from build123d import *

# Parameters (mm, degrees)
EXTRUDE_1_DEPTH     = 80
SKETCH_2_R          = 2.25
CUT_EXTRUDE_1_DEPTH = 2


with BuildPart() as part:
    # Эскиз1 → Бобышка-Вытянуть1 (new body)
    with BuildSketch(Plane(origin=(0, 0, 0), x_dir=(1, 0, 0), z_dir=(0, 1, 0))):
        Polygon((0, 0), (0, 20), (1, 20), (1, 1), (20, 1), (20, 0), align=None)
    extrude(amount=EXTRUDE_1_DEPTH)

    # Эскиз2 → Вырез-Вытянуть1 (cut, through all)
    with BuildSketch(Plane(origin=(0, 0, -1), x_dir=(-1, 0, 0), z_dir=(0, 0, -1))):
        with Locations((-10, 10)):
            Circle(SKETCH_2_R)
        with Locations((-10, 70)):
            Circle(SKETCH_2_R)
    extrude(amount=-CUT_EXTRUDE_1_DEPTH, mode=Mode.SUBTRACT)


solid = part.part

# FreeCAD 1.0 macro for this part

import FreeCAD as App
import Part
import Sketcher

V = App.Vector


def add_polygon(sketch, points):
    """Adds a closed chain of lines whose ends are joined by coincident constraints."""
    first, n = sketch.GeometryCount, len(points)
    for a, b in zip(points, points[1:] + points[:1]):
        sketch.addGeometry(Part.LineSegment(App.Vector(*a, 0), App.Vector(*b, 0)), False)
    for i in range(n):
        sketch.addConstraint(Sketcher.Constraint("Coincident", first + i, 2, first + (i + 1) % n, 1))

doc = App.newDocument("Part")
body = doc.addObject("PartDesign::Body", "Body")

# Sketch on XZ plane
sketch1 = body.newObject("Sketcher::SketchObject", "Sketch")
sketch1.AttachmentSupport = (doc.getObject("XZ_Plane"), [""])
sketch1.MapMode = "FlatFace"
add_polygon(sketch1, [(0, -20), (0, 0), (20, 0), (20, -1), (1, -1), (1, -20)])  # lines 0-5
sketch1.addConstraint([
    Sketcher.Constraint("Vertical", 0),
    Sketcher.Constraint("Horizontal", 1),
    Sketcher.Constraint("Vertical", 2),
    Sketcher.Constraint("Horizontal", 3),
    Sketcher.Constraint("Vertical", 4),
    Sketcher.Constraint("Horizontal", 5),
    Sketcher.Constraint("Coincident", 0, 2, -1, 1),
    Sketcher.Constraint("Equal", 1, 0),
    Sketcher.Constraint("Equal", 5, 2),
    Sketcher.Constraint("DistanceX", 1, 1, 1, 2, 20.0),
    Sketcher.Constraint("DistanceX", 3, 2, 3, 1, 19.0),
])
pad1 = body.newObject("PartDesign::Pad", "Pad")
pad1.Profile = sketch1
pad1.Length = 80
pad1.Reversed = True

# Sketch on XY plane
sketch2 = body.newObject("Sketcher::SketchObject", "Sketch001")
sketch2.AttachmentSupport = (doc.getObject("XY_Plane"), [""])
sketch2.MapMode = "FlatFace"
sketch2.AttachmentOffset = App.Placement(V(0, 0, -1), App.Rotation())
sketch2.addGeometry([
    Part.Circle(V(10, 10, 0), V(0, 0, 1), 2.2),
    Part.Circle(V(10, 70, 0), V(0, 0, 1), 2.2),
], False)
sketch2.addConstraint([
    Sketcher.Constraint("Equal", 0, 1),
    Sketcher.Constraint("Vertical", 0, 3, 1, 3),
    Sketcher.Constraint("Diameter", 0, 4.5),
    Sketcher.Constraint("DistanceX", -1, 1, 0, 3, 10.0),
    Sketcher.Constraint("DistanceY", -1, 1, 0, 3, 10.0),
    Sketcher.Constraint("DistanceY", -1, 1, 1, 3, 70.0),
])
pocket1 = body.newObject("PartDesign::Pocket", "Pocket")
pocket1.Profile = sketch2
pocket1.Type = "ThroughAll"
pocket1.Reversed = True

doc.recompute()
